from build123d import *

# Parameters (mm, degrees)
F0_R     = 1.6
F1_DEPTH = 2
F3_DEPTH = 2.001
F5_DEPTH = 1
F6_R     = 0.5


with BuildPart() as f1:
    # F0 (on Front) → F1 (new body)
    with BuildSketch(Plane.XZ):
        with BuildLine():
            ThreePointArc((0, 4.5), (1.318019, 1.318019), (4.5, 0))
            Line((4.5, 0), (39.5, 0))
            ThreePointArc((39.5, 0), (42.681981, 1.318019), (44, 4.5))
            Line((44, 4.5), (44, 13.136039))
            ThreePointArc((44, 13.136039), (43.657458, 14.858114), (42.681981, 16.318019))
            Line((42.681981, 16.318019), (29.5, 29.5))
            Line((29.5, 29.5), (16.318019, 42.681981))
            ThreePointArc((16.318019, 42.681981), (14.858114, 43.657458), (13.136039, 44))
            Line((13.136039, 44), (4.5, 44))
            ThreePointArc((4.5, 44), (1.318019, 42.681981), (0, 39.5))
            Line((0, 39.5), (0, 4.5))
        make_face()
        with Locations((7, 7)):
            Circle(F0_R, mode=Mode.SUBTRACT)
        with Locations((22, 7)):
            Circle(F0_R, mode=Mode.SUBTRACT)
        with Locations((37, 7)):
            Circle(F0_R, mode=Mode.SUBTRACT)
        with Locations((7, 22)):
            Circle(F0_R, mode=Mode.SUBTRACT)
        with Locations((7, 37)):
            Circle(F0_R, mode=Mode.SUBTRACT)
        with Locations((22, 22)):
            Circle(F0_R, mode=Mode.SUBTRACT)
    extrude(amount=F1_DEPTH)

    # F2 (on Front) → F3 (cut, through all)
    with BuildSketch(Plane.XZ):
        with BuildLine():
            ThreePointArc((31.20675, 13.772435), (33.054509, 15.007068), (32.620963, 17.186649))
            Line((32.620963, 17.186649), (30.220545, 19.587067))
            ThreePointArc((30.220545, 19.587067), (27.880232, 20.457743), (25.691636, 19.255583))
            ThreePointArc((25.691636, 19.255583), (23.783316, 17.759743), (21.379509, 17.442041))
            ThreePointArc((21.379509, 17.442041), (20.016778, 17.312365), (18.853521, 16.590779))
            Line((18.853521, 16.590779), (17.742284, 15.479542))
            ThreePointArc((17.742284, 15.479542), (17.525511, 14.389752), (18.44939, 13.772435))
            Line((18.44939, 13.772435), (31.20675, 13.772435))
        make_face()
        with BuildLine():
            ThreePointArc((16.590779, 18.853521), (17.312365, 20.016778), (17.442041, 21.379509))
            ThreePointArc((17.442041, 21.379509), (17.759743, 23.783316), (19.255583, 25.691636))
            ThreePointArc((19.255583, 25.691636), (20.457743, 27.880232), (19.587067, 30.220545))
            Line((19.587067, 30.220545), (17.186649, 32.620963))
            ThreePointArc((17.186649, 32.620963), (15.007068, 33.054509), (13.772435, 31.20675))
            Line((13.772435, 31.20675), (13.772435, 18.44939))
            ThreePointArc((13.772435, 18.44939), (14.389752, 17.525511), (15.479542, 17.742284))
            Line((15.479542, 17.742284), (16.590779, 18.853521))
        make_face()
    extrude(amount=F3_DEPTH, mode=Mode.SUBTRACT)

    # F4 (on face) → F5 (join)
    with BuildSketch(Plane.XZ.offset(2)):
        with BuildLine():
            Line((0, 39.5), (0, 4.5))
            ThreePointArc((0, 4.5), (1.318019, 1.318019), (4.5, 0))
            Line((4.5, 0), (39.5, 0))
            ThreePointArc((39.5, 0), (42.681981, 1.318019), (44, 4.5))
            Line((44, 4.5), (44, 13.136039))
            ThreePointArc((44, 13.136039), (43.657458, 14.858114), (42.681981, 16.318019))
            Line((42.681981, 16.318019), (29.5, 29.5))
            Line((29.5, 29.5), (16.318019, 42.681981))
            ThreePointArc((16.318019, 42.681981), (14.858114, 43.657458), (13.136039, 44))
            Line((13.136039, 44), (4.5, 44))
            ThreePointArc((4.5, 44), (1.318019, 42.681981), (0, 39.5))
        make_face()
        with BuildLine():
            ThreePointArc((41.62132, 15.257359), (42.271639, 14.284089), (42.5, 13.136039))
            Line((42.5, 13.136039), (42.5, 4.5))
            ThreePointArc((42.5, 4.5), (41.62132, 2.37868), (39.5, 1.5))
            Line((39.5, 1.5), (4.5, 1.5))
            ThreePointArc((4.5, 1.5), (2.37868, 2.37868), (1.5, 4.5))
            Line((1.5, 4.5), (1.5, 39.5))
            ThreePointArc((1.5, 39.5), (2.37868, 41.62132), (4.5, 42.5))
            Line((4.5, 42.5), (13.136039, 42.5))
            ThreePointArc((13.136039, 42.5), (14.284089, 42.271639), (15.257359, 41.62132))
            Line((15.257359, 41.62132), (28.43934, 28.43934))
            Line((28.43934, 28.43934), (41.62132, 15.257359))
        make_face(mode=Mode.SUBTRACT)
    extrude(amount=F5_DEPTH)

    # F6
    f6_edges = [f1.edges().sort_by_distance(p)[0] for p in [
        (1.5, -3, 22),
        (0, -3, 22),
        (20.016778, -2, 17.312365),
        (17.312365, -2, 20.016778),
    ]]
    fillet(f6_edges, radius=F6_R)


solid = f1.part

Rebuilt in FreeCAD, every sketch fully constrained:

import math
import FreeCAD as App
import Part
import Sketcher
from FreeCAD import Vector
Q = App.Units.Quantity


def edges_at(feature, points):
    """Names of the edges that pass closest to the given points."""
    edges = feature.Shape.Edges
    near = lambda p: min(range(len(edges)), key=lambda i: edges[i].distToShape(Part.Vertex(*p))[0])
    return sorted({f"Edge{near(p) + 1}" for p in points})

doc = App.newDocument("Part")
params = doc.addObject("Spreadsheet::Sheet", "Params")
for row, (alias, value) in enumerate([
    ("sketch1_diameter", "3.2 mm"),
    ("sketch1_radius", "4.499998 mm"),
    ("sketch1_width", "35 mm"),
    ("pad1_length", "2 mm"),
    ("sketch2_radius", "2 mm"),
    ("sketch2_radius2", "2.999999 mm"),
    ("sketch2_radius3", "1 mm"),
    ("sketch3_radius", "3.000001 mm"),
    ("sketch3_radius2", "4.499998 mm"),
    ("sketch3_width", "35 mm"),
    ("pad2_length", "1 mm"),
    ("fillet_radius", "0.5 mm"),
], start=1):
    params.set(f"A{row}", alias)
    params.set(f"B{row}", "=" + value)
    params.setAlias(f"B{row}", alias)

body = doc.addObject("PartDesign::Body", "Body")

sketch1 = body.newObject("Sketcher::SketchObject", "Sketch")
sketch1.AttachmentSupport = (doc.getObject("XZ_Plane"), [""])
sketch1.MapMode = "FlatFace"
sketch1.addGeometry(Part.ArcOfCircle(Part.Circle(Vector(4.5, 4.5, 0), Vector(0, 0, 1), 4.5), math.radians(180), math.radians(270)), False)
sketch1.addGeometry(Part.LineSegment(Vector(4.5, 0, 0), Vector(39.5, 0, 0)), False)
sketch1.addGeometry(Part.ArcOfCircle(Part.Circle(Vector(39.5, 4.5, 0), Vector(0, 0, 1), 4.5), math.radians(-90), math.radians(0)), False)
sketch1.addGeometry(Part.LineSegment(Vector(44, 4.5, 0), Vector(44, 13.1, 0)), False)
sketch1.addGeometry(Part.ArcOfCircle(Part.Circle(Vector(39.5, 13.1, 0), Vector(0, 0, 1), 4.5), math.radians(0), math.radians(45)), False)
sketch1.addGeometry(Part.LineSegment(Vector(42.7, 16.3, 0), Vector(16.3, 42.7, 0)), False)
sketch1.addGeometry(Part.ArcOfCircle(Part.Circle(Vector(13.1, 39.5, 0), Vector(0, 0, 1), 4.5), math.radians(45), math.radians(90)), False)
sketch1.addGeometry(Part.LineSegment(Vector(13.1, 44, 0), Vector(4.5, 44, 0)), False)
sketch1.addGeometry(Part.ArcOfCircle(Part.Circle(Vector(4.5, 39.5, 0), Vector(0, 0, 1), 4.5), math.radians(90), math.radians(180)), False)
sketch1.addGeometry(Part.LineSegment(Vector(0, 39.5, 0), Vector(0, 4.5, 0)), False)
sketch1.addGeometry(Part.Circle(Vector(7, 7, 0), Vector(0, 0, 1), 1.6), False)
sketch1.addGeometry(Part.Circle(Vector(22, 7, 0), Vector(0, 0, 1), 1.6), False)
sketch1.addGeometry(Part.Circle(Vector(37, 7, 0), Vector(0, 0, 1), 1.6), False)
sketch1.addGeometry(Part.Circle(Vector(7, 22, 0), Vector(0, 0, 1), 1.6), False)
sketch1.addGeometry(Part.Circle(Vector(7, 37, 0), Vector(0, 0, 1), 1.6), False)
sketch1.addGeometry(Part.Circle(Vector(22, 22, 0), Vector(0, 0, 1), 1.6), False)
sketch1.addConstraint(Sketcher.Constraint("Tangent", 0, 2, 1, 1))
sketch1.addConstraint(Sketcher.Constraint("Tangent", 1, 2, 2, 1))
sketch1.addConstraint(Sketcher.Constraint("Tangent", 2, 2, 3, 1))
sketch1.addConstraint(Sketcher.Constraint("Tangent", 3, 2, 4, 1))
sketch1.addConstraint(Sketcher.Constraint("Tangent", 4, 2, 5, 1))
sketch1.addConstraint(Sketcher.Constraint("Tangent", 5, 2, 6, 1))
sketch1.addConstraint(Sketcher.Constraint("Tangent", 6, 2, 7, 1))
sketch1.addConstraint(Sketcher.Constraint("Tangent", 7, 2, 8, 1))
sketch1.addConstraint(Sketcher.Constraint("Tangent", 8, 2, 9, 1))
sketch1.addConstraint(Sketcher.Constraint("Tangent", 9, 2, 0, 1))
sketch1.addConstraint(Sketcher.Constraint("Horizontal", 1))
sketch1.addConstraint(Sketcher.Constraint("Vertical", 3))
sketch1.addConstraint(Sketcher.Constraint("Horizontal", 7))
sketch1.addConstraint(Sketcher.Constraint("Vertical", 9))
sketch1.addConstraint(Sketcher.Constraint("Equal", 0, 2))
sketch1.addConstraint(Sketcher.Constraint("Equal", 4, 6))
sketch1.addConstraint(Sketcher.Constraint("Equal", 2, 8))
sketch1.addConstraint(Sketcher.Constraint("Equal", 10, 11))
sketch1.addConstraint(Sketcher.Constraint("Equal", 11, 12))
sketch1.addConstraint(Sketcher.Constraint("Equal", 12, 13))
sketch1.addConstraint(Sketcher.Constraint("Equal", 13, 14))
sketch1.addConstraint(Sketcher.Constraint("Equal", 14, 15))
sketch1.addConstraint(Sketcher.Constraint("PointOnObject", 0, 2, -1))
sketch1.addConstraint(Sketcher.Constraint("PointOnObject", 8, 2, -2))
sketch1.addConstraint(Sketcher.Constraint("Horizontal", 10, 3, 11, 3))
sketch1.addConstraint(Sketcher.Constraint("Horizontal", 11, 3, 12, 3))
sketch1.addConstraint(Sketcher.Constraint("Horizontal", 13, 3, 15, 3))
sketch1.addConstraint(Sketcher.Constraint("Horizontal", 6, 3, 8, 2))
sketch1.addConstraint(Sketcher.Constraint("Vertical", 10, 3, 13, 3))
sketch1.addConstraint(Sketcher.Constraint("Vertical", 13, 3, 14, 3))
sketch1.addConstraint(Sketcher.Constraint("Vertical", 11, 3, 15, 3))
sketch1.addConstraint(Sketcher.Constraint("Equal", 7, 3))
sketch1.addConstraint(Sketcher.Constraint("Equal", 1, 9))
sketch1.addConstraint(Sketcher.Constraint("Diameter", 10, 3.2))
sketch1.addConstraint(Sketcher.Constraint("Radius", 0, 4.499998))
sketch1.addConstraint(Sketcher.Constraint("DistanceX", 1, 1, 1, 2, 35.0))
sketch1.addConstraint(Sketcher.Constraint("DistanceX", -1, 1, 10, 3, 7.0))
sketch1.addConstraint(Sketcher.Constraint("DistanceY", -1, 1, 10, 3, 7.0))
sketch1.addConstraint(Sketcher.Constraint("DistanceX", -1, 1, 11, 3, 22.0))
sketch1.addConstraint(Sketcher.Constraint("DistanceX", -1, 1, 12, 3, 37.0))
sketch1.addConstraint(Sketcher.Constraint("DistanceY", -1, 1, 13, 3, 22.0))
sketch1.addConstraint(Sketcher.Constraint("DistanceY", -1, 1, 14, 3, 37.0))
sketch1.addConstraint(Sketcher.Constraint("DistanceX", 7, 2, 7, 1, 8.636039))
sketch1.setExpression("Constraints[33]", "Params.sketch1_diameter")
sketch1.setExpression("Constraints[34]", "Params.sketch1_radius")
sketch1.setExpression("Constraints[35]", "Params.sketch1_width")
pad1 = body.newObject("PartDesign::Pad", "Pad")
pad1.Profile = sketch1
pad1.setExpression("Length", "Params.pad1_length")

sketch2 = body.newObject("Sketcher::SketchObject", "Sketch001")
sketch2.AttachmentSupport = (doc.getObject("XZ_Plane"), [""])
sketch2.MapMode = "FlatFace"
sketch2.addGeometry(Part.ArcOfCircle(Part.Circle(Vector(31.2, 15.8, 0), Vector(0, 0, 1), 2), math.radians(-90), math.radians(45)), False)
sketch2.addGeometry(Part.LineSegment(Vector(32.6, 17.2, 0), Vector(30.2, 19.6, 0)), False)
sketch2.addGeometry(Part.ArcOfCircle(Part.Circle(Vector(28.1, 17.5, 0), Vector(0, 0, 1), 3), math.radians(45), math.radians(143)), False)
sketch2.addGeometry(Part.ArcOfCircle(Part.Circle(Vector(22, 22, 0), Vector(0, 0, 1), 4.6), math.radians(-98), math.radians(-37)), False)
sketch2.addGeometry(Part.ArcOfCircle(Part.Circle(Vector(21, 14.5, 0), Vector(0, 0, 1), 3), math.radians(82), math.radians(135)), False)
sketch2.addGeometry(Part.LineSegment(Vector(18.9, 16.6, 0), Vector(17.7, 15.5, 0)), False)
sketch2.addGeometry(Part.ArcOfCircle(Part.Circle(Vector(18.4, 14.8, 0), Vector(0, 0, 1), 1), math.radians(135), math.radians(270)), False)
sketch2.addGeometry(Part.LineSegment(Vector(18.4, 13.8, 0), Vector(31.2, 13.8, 0)), False)
sketch2.addGeometry(Part.ArcOfCircle(Part.Circle(Vector(14.5, 21, 0), Vector(0, 0, 1), 3), math.radians(-45), math.radians(8)), False)
sketch2.addGeometry(Part.ArcOfCircle(Part.Circle(Vector(22, 22, 0), Vector(0, 0, 1), 4.6), math.radians(127), math.radians(188)), False)
sketch2.addGeometry(Part.ArcOfCircle(Part.Circle(Vector(17.5, 28.1, 0), Vector(0, 0, 1), 3), math.radians(-53), math.radians(45)), False)
sketch2.addGeometry(Part.LineSegment(Vector(19.6, 30.2, 0), Vector(17.2, 32.6, 0)), False)
sketch2.addGeometry(Part.ArcOfCircle(Part.Circle(Vector(15.8, 31.2, 0), Vector(0, 0, 1), 2), math.radians(45), math.radians(180)), False)
sketch2.addGeometry(Part.LineSegment(Vector(13.8, 31.2, 0), Vector(13.8, 18.4, 0)), False)
sketch2.addGeometry(Part.ArcOfCircle(Part.Circle(Vector(14.8, 18.4, 0), Vector(0, 0, 1), 1), math.radians(-180), math.radians(-45)), False)
sketch2.addGeometry(Part.LineSegment(Vector(15.5, 17.7, 0), Vector(16.6, 18.9, 0)), False)
sketch2.addConstraint(Sketcher.Constraint("Tangent", 0, 2, 1, 1))
sketch2.addConstraint(Sketcher.Constraint("Tangent", 1, 2, 2, 1))
sketch2.addConstraint(Sketcher.Constraint("Tangent", 2, 2, 3, 2))
sketch2.addConstraint(Sketcher.Constraint("Tangent", 3, 1, 4, 1))
sketch2.addConstraint(Sketcher.Constraint("Tangent", 4, 2, 5, 1))
sketch2.addConstraint(Sketcher.Constraint("Tangent", 5, 2, 6, 1))
sketch2.addConstraint(Sketcher.Constraint("Tangent", 6, 2, 7, 1))
sketch2.addConstraint(Sketcher.Constraint("Tangent", 7, 2, 0, 1))
sketch2.addConstraint(Sketcher.Constraint("Tangent", 8, 2, 9, 2))
sketch2.addConstraint(Sketcher.Constraint("Tangent", 9, 1, 10, 1))
sketch2.addConstraint(Sketcher.Constraint("Tangent", 10, 2, 11, 1))
sketch2.addConstraint(Sketcher.Constraint("Tangent", 11, 2, 12, 1))
sketch2.addConstraint(Sketcher.Constraint("Tangent", 12, 2, 13, 1))
sketch2.addConstraint(Sketcher.Constraint("Tangent", 13, 2, 14, 1))
sketch2.addConstraint(Sketcher.Constraint("Tangent", 14, 2, 15, 1))
sketch2.addConstraint(Sketcher.Constraint("Tangent", 15, 2, 8, 1))
sketch2.addConstraint(Sketcher.Constraint("Horizontal", 7))
sketch2.addConstraint(Sketcher.Constraint("Vertical", 13))
sketch2.addConstraint(Sketcher.Constraint("Coincident", 9, 3, 3, 3))
sketch2.addConstraint(Sketcher.Constraint("Equal", 2, 4))
sketch2.addConstraint(Sketcher.Constraint("Equal", 4, 8))
sketch2.addConstraint(Sketcher.Constraint("Equal", 3, 9))
sketch2.addConstraint(Sketcher.Constraint("Equal", 8, 10))
sketch2.addConstraint(Sketcher.Constraint("Equal", 0, 12))
sketch2.addConstraint(Sketcher.Constraint("Equal", 6, 14))
sketch2.addConstraint(Sketcher.Constraint("Perpendicular", 1, 5))
sketch2.addConstraint(Sketcher.Constraint("Perpendicular", 5, 11))
sketch2.addConstraint(Sketcher.Constraint("Perpendicular", 11, 15))
sketch2.addConstraint(Sketcher.Constraint("Equal", 7, 13))
sketch2.addConstraint(Sketcher.Constraint("Equal", 1, 11))
sketch2.addConstraint(Sketcher.Constraint("Equal", 5, 15))
sketch2.addConstraint(Sketcher.Constraint("Radius", 0, 2.0))
sketch2.addConstraint(Sketcher.Constraint("Radius", 2, 2.999999))
sketch2.addConstraint(Sketcher.Constraint("Radius", 6, 1.0))
sketch2.addConstraint(Sketcher.Constraint("Angle", 1, Q("135 deg")))
sketch2.addConstraint(Sketcher.Constraint("DistanceX", -1, 1, 3, 3, 21.999999))
sketch2.addConstraint(Sketcher.Constraint("DistanceY", -1, 1, 9, 3, 21.999999))
sketch2.addConstraint(Sketcher.Constraint("Radius", 3, 4.600003))
sketch2.addConstraint(Sketcher.Constraint("DistanceX", 7, 1, 7, 2, 12.75736))
sketch2.addConstraint(Sketcher.Constraint("DistanceY", 0, 2, 2, 3, 0.279098))
sketch2.addConstraint(Sketcher.Constraint("DistanceY", 5, 2, 3, 1, 1.962499))
sketch2.setExpression("Constraints[31]", "Params.sketch2_radius")
sketch2.setExpression("Constraints[32]", "Params.sketch2_radius2")
sketch2.setExpression("Constraints[33]", "Params.sketch2_radius3")
pocket1 = body.newObject("PartDesign::Pocket", "Pocket")
pocket1.Profile = sketch2
pocket1.Type = "ThroughAll"
pocket1.Reversed = True

sketch3 = body.newObject("Sketcher::SketchObject", "Sketch002")
sketch3.AttachmentSupport = (doc.getObject("XZ_Plane"), [""])
sketch3.MapMode = "FlatFace"
sketch3.AttachmentOffset = App.Placement(Vector(0, 0, 2), App.Rotation())
sketch3.addGeometry(Part.LineSegment(Vector(0, 39.5, 0), Vector(0, 4.5, 0)), False)
sketch3.addGeometry(Part.ArcOfCircle(Part.Circle(Vector(4.5, 4.5, 0), Vector(0, 0, 1), 4.5), math.radians(180), math.radians(270)), False)
sketch3.addGeometry(Part.LineSegment(Vector(4.5, 0, 0), Vector(39.5, 0, 0)), False)
sketch3.addGeometry(Part.ArcOfCircle(Part.Circle(Vector(39.5, 4.5, 0), Vector(0, 0, 1), 4.5), math.radians(-90), math.radians(0)), False)
sketch3.addGeometry(Part.LineSegment(Vector(44, 4.5, 0), Vector(44, 13.1, 0)), False)
sketch3.addGeometry(Part.ArcOfCircle(Part.Circle(Vector(39.5, 13.1, 0), Vector(0, 0, 1), 4.5), math.radians(0), math.radians(45)), False)
sketch3.addGeometry(Part.LineSegment(Vector(42.7, 16.3, 0), Vector(16.3, 42.7, 0)), False)
sketch3.addGeometry(Part.ArcOfCircle(Part.Circle(Vector(13.1, 39.5, 0), Vector(0, 0, 1), 4.5), math.radians(45), math.radians(90)), False)
sketch3.addGeometry(Part.LineSegment(Vector(13.1, 44, 0), Vector(4.5, 44, 0)), False)
sketch3.addGeometry(Part.ArcOfCircle(Part.Circle(Vector(4.5, 39.5, 0), Vector(0, 0, 1), 4.5), math.radians(90), math.radians(180)), False)
sketch3.addGeometry(Part.LineSegment(Vector(28.4, 28.4, 0), Vector(41.6, 15.3, 0)), False)
sketch3.addGeometry(Part.ArcOfCircle(Part.Circle(Vector(39.5, 13.1, 0), Vector(0, 0, 1), 3), math.radians(0), math.radians(45)), False)
sketch3.addGeometry(Part.LineSegment(Vector(42.5, 13.1, 0), Vector(42.5, 4.5, 0)), False)
sketch3.addGeometry(Part.ArcOfCircle(Part.Circle(Vector(39.5, 4.5, 0), Vector(0, 0, 1), 3), math.radians(-90), math.radians(0)), False)
sketch3.addGeometry(Part.LineSegment(Vector(39.5, 1.5, 0), Vector(4.5, 1.5, 0)), False)
sketch3.addGeometry(Part.ArcOfCircle(Part.Circle(Vector(4.5, 4.5, 0), Vector(0, 0, 1), 3), math.radians(-180), math.radians(-90)), False)
sketch3.addGeometry(Part.LineSegment(Vector(1.5, 4.5, 0), Vector(1.5, 39.5, 0)), False)
sketch3.addGeometry(Part.ArcOfCircle(Part.Circle(Vector(4.5, 39.5, 0), Vector(0, 0, 1), 3), math.radians(90), math.radians(180)), False)
sketch3.addGeometry(Part.LineSegment(Vector(4.5, 42.5, 0), Vector(13.1, 42.5, 0)), False)
sketch3.addGeometry(Part.ArcOfCircle(Part.Circle(Vector(13.1, 39.5, 0), Vector(0, 0, 1), 3), math.radians(45), math.radians(90)), False)
sketch3.addGeometry(Part.LineSegment(Vector(15.3, 41.6, 0), Vector(28.4, 28.4, 0)), False)
sketch3.addConstraint(Sketcher.Constraint("Tangent", 0, 2, 1, 1))
sketch3.addConstraint(Sketcher.Constraint("Tangent", 1, 2, 2, 1))
sketch3.addConstraint(Sketcher.Constraint("Tangent", 2, 2, 3, 1))
sketch3.addConstraint(Sketcher.Constraint("Tangent", 3, 2, 4, 1))
sketch3.addConstraint(Sketcher.Constraint("Tangent", 4, 2, 5, 1))
sketch3.addConstraint(Sketcher.Constraint("Tangent", 5, 2, 6, 1))
sketch3.addConstraint(Sketcher.Constraint("Tangent", 6, 2, 7, 1))
sketch3.addConstraint(Sketcher.Constraint("Tangent", 7, 2, 8, 1))
sketch3.addConstraint(Sketcher.Constraint("Tangent", 8, 2, 9, 1))
sketch3.addConstraint(Sketcher.Constraint("Tangent", 9, 2, 0, 1))
sketch3.addConstraint(Sketcher.Constraint("Tangent", 10, 2, 11, 2))
sketch3.addConstraint(Sketcher.Constraint("Tangent", 11, 1, 12, 1))
sketch3.addConstraint(Sketcher.Constraint("Tangent", 12, 2, 13, 2))
sketch3.addConstraint(Sketcher.Constraint("Tangent", 13, 1, 14, 1))
sketch3.addConstraint(Sketcher.Constraint("Tangent", 14, 2, 15, 2))
sketch3.addConstraint(Sketcher.Constraint("Tangent", 15, 1, 16, 1))
sketch3.addConstraint(Sketcher.Constraint("Tangent", 16, 2, 17, 2))
sketch3.addConstraint(Sketcher.Constraint("Tangent", 17, 1, 18, 1))
sketch3.addConstraint(Sketcher.Constraint("Tangent", 18, 2, 19, 2))
sketch3.addConstraint(Sketcher.Constraint("Tangent", 19, 1, 20, 1))
sketch3.addConstraint(Sketcher.Constraint("Coincident", 20, 2, 10, 1))
sketch3.addConstraint(Sketcher.Constraint("Vertical", 0))
sketch3.addConstraint(Sketcher.Constraint("Horizontal", 2))
sketch3.addConstraint(Sketcher.Constraint("Vertical", 4))
sketch3.addConstraint(Sketcher.Constraint("Horizontal", 8))
sketch3.addConstraint(Sketcher.Constraint("Vertical", 12))
sketch3.addConstraint(Sketcher.Constraint("Horizontal", 14))
sketch3.addConstraint(Sketcher.Constraint("Vertical", 16))
sketch3.addConstraint(Sketcher.Constraint("Horizontal", 18))
sketch3.addConstraint(Sketcher.Constraint("Coincident", 11, 3, 5, 3))
sketch3.addConstraint(Sketcher.Constraint("Coincident", 13, 3, 3, 3))
sketch3.addConstraint(Sketcher.Constraint("Coincident", 15, 3, 1, 3))
sketch3.addConstraint(Sketcher.Constraint("Coincident", 17, 3, 9, 3))
sketch3.addConstraint(Sketcher.Constraint("Coincident", 19, 3, 7, 3))
sketch3.addConstraint(Sketcher.Constraint("Equal", 1, 3))
sketch3.addConstraint(Sketcher.Constraint("Equal", 5, 7))
sketch3.addConstraint(Sketcher.Constraint("Equal", 3, 9))
sketch3.addConstraint(Sketcher.Constraint("PointOnObject", 0, 2, -2))
sketch3.addConstraint(Sketcher.Constraint("PointOnObject", 1, 2, -1))
sketch3.addConstraint(Sketcher.Constraint("Parallel", 6, 10))
sketch3.addConstraint(Sketcher.Constraint("Horizontal", 7, 3, 17, 3))
sketch3.addConstraint(Sketcher.Constraint("Equal", 14, 0))
sketch3.addConstraint(Sketcher.Constraint("Equal", 18, 4))
sketch3.addConstraint(Sketcher.Constraint("Equal", 10, 20))
sketch3.addConstraint(Sketcher.Constraint("Radius", 13, 3.000001))
sketch3.addConstraint(Sketcher.Constraint("Radius", 1, 4.499998))
sketch3.addConstraint(Sketcher.Constraint("DistanceX", 2, 1, 2, 2, 35.0))
sketch3.addConstraint(Sketcher.Constraint("DistanceX", 8, 2, 8, 1, 8.636039))
sketch3.setExpression("Constraints[44]", "Params.sketch3_radius")
sketch3.setExpression("Constraints[45]", "Params.sketch3_radius2")
sketch3.setExpression("Constraints[46]", "Params.sketch3_width")
pad2 = body.newObject("PartDesign::Pad", "Pad001")
pad2.Profile = sketch3
pad2.setExpression("Length", "Params.pad2_length")
doc.recompute()

fillet = body.newObject("PartDesign::Fillet", "Fillet")
fillet.Base = (pad2, edges_at(pad2, [
    (1.5, -3, 22),
    (0, -3, 22),
    (20.017, -2, 17.312),
    (17.312, -2, 20.017),
]))
fillet.setExpression("Radius", "Params.fillet_radius")

doc.recompute()
